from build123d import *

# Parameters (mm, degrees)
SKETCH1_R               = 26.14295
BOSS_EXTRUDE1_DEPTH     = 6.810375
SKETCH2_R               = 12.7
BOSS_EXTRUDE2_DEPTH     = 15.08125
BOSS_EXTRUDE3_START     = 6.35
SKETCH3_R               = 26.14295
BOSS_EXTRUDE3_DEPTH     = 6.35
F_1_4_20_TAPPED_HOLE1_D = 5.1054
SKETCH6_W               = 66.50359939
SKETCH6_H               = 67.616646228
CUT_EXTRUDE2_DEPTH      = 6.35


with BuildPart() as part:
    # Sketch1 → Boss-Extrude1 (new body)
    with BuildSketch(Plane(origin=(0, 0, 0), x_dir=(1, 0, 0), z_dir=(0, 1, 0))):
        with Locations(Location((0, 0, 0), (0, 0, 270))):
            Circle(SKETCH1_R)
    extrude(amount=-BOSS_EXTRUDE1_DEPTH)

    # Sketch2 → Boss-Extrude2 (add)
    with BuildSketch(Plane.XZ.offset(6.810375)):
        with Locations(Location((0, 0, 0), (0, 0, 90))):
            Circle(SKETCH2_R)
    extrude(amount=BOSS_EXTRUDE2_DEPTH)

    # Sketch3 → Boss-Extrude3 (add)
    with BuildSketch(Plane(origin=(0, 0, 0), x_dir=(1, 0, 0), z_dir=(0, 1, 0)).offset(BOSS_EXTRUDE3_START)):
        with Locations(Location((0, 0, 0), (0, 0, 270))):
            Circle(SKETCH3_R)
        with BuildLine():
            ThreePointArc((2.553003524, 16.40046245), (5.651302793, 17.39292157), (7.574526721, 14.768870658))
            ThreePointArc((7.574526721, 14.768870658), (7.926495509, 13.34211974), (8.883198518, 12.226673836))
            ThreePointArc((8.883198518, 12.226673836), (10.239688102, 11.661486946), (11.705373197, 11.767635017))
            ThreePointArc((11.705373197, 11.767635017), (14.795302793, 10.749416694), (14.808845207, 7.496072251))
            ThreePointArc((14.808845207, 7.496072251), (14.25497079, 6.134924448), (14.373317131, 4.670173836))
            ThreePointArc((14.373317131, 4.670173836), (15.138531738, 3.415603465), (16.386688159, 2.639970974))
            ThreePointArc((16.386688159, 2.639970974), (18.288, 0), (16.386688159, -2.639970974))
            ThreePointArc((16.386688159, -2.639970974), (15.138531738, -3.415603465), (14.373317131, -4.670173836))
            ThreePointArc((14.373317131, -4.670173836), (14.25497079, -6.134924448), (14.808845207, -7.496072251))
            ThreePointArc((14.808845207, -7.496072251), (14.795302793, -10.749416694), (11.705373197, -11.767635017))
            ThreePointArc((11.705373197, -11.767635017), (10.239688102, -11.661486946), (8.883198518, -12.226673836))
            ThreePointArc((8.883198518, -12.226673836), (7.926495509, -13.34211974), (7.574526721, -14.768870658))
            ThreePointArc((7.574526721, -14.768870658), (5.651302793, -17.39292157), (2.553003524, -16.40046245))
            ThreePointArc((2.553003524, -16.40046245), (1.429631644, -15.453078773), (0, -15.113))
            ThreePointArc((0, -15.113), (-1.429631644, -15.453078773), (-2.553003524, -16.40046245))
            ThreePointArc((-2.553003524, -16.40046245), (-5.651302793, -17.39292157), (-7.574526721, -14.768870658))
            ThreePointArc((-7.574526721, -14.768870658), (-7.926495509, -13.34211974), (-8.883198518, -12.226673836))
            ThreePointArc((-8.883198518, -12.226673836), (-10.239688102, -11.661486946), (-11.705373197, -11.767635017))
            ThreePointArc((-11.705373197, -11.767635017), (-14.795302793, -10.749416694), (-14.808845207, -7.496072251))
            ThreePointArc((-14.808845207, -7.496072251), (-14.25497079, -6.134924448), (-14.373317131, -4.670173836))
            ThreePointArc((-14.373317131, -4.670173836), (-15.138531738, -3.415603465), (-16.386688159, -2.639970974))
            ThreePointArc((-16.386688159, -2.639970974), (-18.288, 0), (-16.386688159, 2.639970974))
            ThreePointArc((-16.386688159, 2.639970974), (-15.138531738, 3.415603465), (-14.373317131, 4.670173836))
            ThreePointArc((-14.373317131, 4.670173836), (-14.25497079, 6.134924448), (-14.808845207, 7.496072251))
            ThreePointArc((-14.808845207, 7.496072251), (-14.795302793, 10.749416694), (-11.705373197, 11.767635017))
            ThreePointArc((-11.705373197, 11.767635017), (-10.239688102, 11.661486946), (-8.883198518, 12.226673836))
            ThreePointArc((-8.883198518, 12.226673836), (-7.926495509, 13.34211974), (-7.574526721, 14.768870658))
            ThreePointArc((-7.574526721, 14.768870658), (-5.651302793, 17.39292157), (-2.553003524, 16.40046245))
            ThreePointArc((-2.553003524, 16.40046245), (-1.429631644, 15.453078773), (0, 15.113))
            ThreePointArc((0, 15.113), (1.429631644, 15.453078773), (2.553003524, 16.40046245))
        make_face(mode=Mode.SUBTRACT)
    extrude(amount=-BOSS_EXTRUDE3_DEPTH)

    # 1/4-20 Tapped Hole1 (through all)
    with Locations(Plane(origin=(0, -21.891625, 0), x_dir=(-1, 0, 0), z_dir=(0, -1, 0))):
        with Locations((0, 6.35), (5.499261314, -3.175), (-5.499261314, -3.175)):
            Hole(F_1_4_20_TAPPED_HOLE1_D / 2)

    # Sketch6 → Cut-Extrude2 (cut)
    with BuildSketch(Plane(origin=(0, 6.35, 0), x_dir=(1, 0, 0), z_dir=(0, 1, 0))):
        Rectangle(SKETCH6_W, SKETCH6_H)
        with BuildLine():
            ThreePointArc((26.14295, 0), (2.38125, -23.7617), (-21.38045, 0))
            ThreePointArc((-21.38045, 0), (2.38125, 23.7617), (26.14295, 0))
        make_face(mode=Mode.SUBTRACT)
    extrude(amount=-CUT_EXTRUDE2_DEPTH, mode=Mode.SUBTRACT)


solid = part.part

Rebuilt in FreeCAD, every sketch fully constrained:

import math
import FreeCAD as App
import Part
import Sketcher
Q = App.Units.Quantity

doc = App.newDocument("Part")
body = doc.addObject("PartDesign::Body", "Body")

# Sketch on XZ plane
sketch1 = body.newObject("Sketcher::SketchObject", "Sketch")
sketch1.AttachmentSupport = (doc.getObject("XZ_Plane"), [""])
sketch1.MapMode = "FlatFace"
sketch1.addGeometry(Part.Circle(App.Vector(0, 0, 0), App.Vector(0, 0, 1), 26.14295), False)
sketch1.addConstraint(Sketcher.Constraint("Coincident", 0, 3, -1, 1))
sketch1.addConstraint(Sketcher.Constraint("Diameter", 0, Q("2.0585 in")))
pad1 = body.newObject("PartDesign::Pad", "Pad")
pad1.Profile = sketch1
pad1.Length = 6.810375

# Sketch on XZ plane
sketch2 = body.newObject("Sketcher::SketchObject", "Sketch001")
sketch2.AttachmentSupport = (doc.getObject("XZ_Plane"), [""])
sketch2.MapMode = "FlatFace"
sketch2.AttachmentOffset = App.Placement(App.Vector(0, 0, 6.810375), App.Rotation())
sketch2.addGeometry(Part.Circle(App.Vector(0, 0, 0), App.Vector(0, 0, 1), 12.7), False)
sketch2.addConstraint(Sketcher.Constraint("Coincident", 0, 3, -1, 1))
sketch2.addConstraint(Sketcher.Constraint("Diameter", 0, Q("1 in")))
pad2 = body.newObject("PartDesign::Pad", "Pad001")
pad2.Profile = sketch2
pad2.Length = Q("0.59375 in")

# Sketch on XZ plane
sketch3 = body.newObject("Sketcher::SketchObject", "Sketch002")
sketch3.AttachmentSupport = (doc.getObject("XZ_Plane"), [""])
sketch3.MapMode = "FlatFace"
sketch3.AttachmentOffset = App.Placement(App.Vector(0, 0, -0.25 * 25.4), App.Rotation())
sketch3.addGeometry(Part.Circle(App.Vector(0, 0, 0), App.Vector(0, 0, 1), 26.14295), False)
sketch3.addGeometry(Part.ArcOfCircle(Part.Circle(App.Vector(0, -18.288, 0), App.Vector(0, 0, 1), 3.175), math.radians(36.476998), math.radians(90)), False)
sketch3.addGeometry(Part.ArcOfCircle(Part.Circle(App.Vector(4.791168, -14.745698, 0), App.Vector(0, 0, 1), 2.783455), math.radians(-143.523002), math.radians(-0.476998)), False)
sketch3.addGeometry(Part.ArcOfCircle(Part.Circle(App.Vector(10.749417, -14.795303, 0), App.Vector(0, 0, 1), 3.175), math.radians(126), math.radians(179.523002)), False)
sketch3.addGeometry(Part.ArcOfCircle(Part.Circle(App.Vector(10.749417, -14.795303, 0), App.Vector(0, 0, 1), 3.175), math.radians(72.476998), math.radians(126)), False)
sketch3.addGeometry(Part.ArcOfCircle(Part.Circle(App.Vector(12.54344, -9.113343, 0), App.Vector(0, 0, 1), 2.783455), math.radians(-107.523002), math.radians(35.523002)), False)
sketch3.addGeometry(Part.ArcOfCircle(Part.Circle(App.Vector(17.392922, -5.651303, 0), App.Vector(0, 0, 1), 3.175), math.radians(162), math.radians(215.523002)), False)
sketch3.addGeometry(Part.ArcOfCircle(Part.Circle(App.Vector(17.392922, -5.651303, 0), App.Vector(0, 0, 1), 3.175), math.radians(108.476998), math.radians(162)), False)
sketch3.addGeometry(Part.ArcOfCircle(Part.Circle(App.Vector(15.504545, 0, 0), App.Vector(0, 0, 1), 2.783455), math.radians(-71.523002), math.radians(71.523002)), False)
sketch3.addGeometry(Part.ArcOfCircle(Part.Circle(App.Vector(17.392922, 5.651303, 0), App.Vector(0, 0, 1), 3.175), math.radians(-162), math.radians(-108.476998)), False)
sketch3.addGeometry(Part.ArcOfCircle(Part.Circle(App.Vector(17.392922, 5.651303, 0), App.Vector(0, 0, 1), 3.175), math.radians(144.476998), math.radians(198)), False)
sketch3.addGeometry(Part.ArcOfCircle(Part.Circle(App.Vector(12.54344, 9.113343, 0), App.Vector(0, 0, 1), 2.783455), math.radians(-35.523002), math.radians(107.523002)), False)
sketch3.addGeometry(Part.ArcOfCircle(Part.Circle(App.Vector(10.749417, 14.795303, 0), App.Vector(0, 0, 1), 3.175), math.radians(-126), math.radians(-72.476998)), False)
sketch3.addGeometry(Part.ArcOfCircle(Part.Circle(App.Vector(10.749417, 14.795303, 0), App.Vector(0, 0, 1), 3.175), math.radians(-179.523002), math.radians(-126)), False)
sketch3.addGeometry(Part.ArcOfCircle(Part.Circle(App.Vector(4.791168, 14.745698, 0), App.Vector(0, 0, 1), 2.783455), math.radians(0.476998), math.radians(143.523002)), False)
sketch3.addGeometry(Part.ArcOfCircle(Part.Circle(App.Vector(0, 18.288, 0), App.Vector(0, 0, 1), 3.175), math.radians(-90), math.radians(-36.476998)), False)
sketch3.addGeometry(Part.ArcOfCircle(Part.Circle(App.Vector(0, 18.288, 0), App.Vector(0, 0, 1), 3.175), math.radians(-143.523002), math.radians(-90)), False)
sketch3.addGeometry(Part.ArcOfCircle(Part.Circle(App.Vector(-4.791168, 14.745698, 0), App.Vector(0, 0, 1), 2.783455), math.radians(36.476998), math.radians(179.523002)), False)
sketch3.addGeometry(Part.ArcOfCircle(Part.Circle(App.Vector(-10.749417, 14.795303, 0), App.Vector(0, 0, 1), 3.175), math.radians(-54), math.radians(-0.476998)), False)
sketch3.addGeometry(Part.ArcOfCircle(Part.Circle(App.Vector(-10.749417, 14.795303, 0), App.Vector(0, 0, 1), 3.175), math.radians(-107.523002), math.radians(-54)), False)
sketch3.addGeometry(Part.ArcOfCircle(Part.Circle(App.Vector(-12.54344, 9.113343, 0), App.Vector(0, 0, 1), 2.783455), math.radians(72.476998), math.radians(215.523002)), False)
sketch3.addGeometry(Part.ArcOfCircle(Part.Circle(App.Vector(-17.392922, 5.651303, 0), App.Vector(0, 0, 1), 3.175), math.radians(-18), math.radians(35.523002)), False)
sketch3.addGeometry(Part.ArcOfCircle(Part.Circle(App.Vector(-17.392922, 5.651303, 0), App.Vector(0, 0, 1), 3.175), math.radians(-71.523002), math.radians(-18)), False)
sketch3.addGeometry(Part.ArcOfCircle(Part.Circle(App.Vector(-15.504545, 0, 0), App.Vector(0, 0, 1), 2.783455), math.radians(108.476998), math.radians(251.523002)), False)
sketch3.addGeometry(Part.ArcOfCircle(Part.Circle(App.Vector(-17.392922, -5.651303, 0), App.Vector(0, 0, 1), 3.175), math.radians(18), math.radians(71.523002)), False)
sketch3.addGeometry(Part.ArcOfCircle(Part.Circle(App.Vector(-17.392922, -5.651303, 0), App.Vector(0, 0, 1), 3.175), math.radians(-35.523002), math.radians(18)), False)
sketch3.addGeometry(Part.ArcOfCircle(Part.Circle(App.Vector(-12.54344, -9.113343, 0), App.Vector(0, 0, 1), 2.783455), math.radians(144.476998), math.radians(287.523002)), False)
sketch3.addGeometry(Part.ArcOfCircle(Part.Circle(App.Vector(-10.749417, -14.795303, 0), App.Vector(0, 0, 1), 3.175), math.radians(54), math.radians(107.523002)), False)
sketch3.addGeometry(Part.ArcOfCircle(Part.Circle(App.Vector(-10.749417, -14.795303, 0), App.Vector(0, 0, 1), 3.175), math.radians(0.476998), math.radians(54)), False)
sketch3.addGeometry(Part.ArcOfCircle(Part.Circle(App.Vector(-4.791168, -14.745698, 0), App.Vector(0, 0, 1), 2.783455), math.radians(-179.523002), math.radians(-36.476998)), False)
sketch3.addGeometry(Part.ArcOfCircle(Part.Circle(App.Vector(0, -18.288, 0), App.Vector(0, 0, 1), 3.175), math.radians(90), math.radians(143.523002)), False)
sketch3.addConstraint(Sketcher.Constraint("Tangent", 1, 1, 2, 1))
sketch3.addConstraint(Sketcher.Constraint("Tangent", 2, 2, 3, 2))
sketch3.addConstraint(Sketcher.Constraint("Tangent", 3, 1, 4, 2))
sketch3.addConstraint(Sketcher.Constraint("Tangent", 4, 1, 5, 1))
sketch3.addConstraint(Sketcher.Constraint("Tangent", 5, 2, 6, 2))
sketch3.addConstraint(Sketcher.Constraint("Tangent", 6, 1, 7, 2))
sketch3.addConstraint(Sketcher.Constraint("Tangent", 7, 1, 8, 1))
sketch3.addConstraint(Sketcher.Constraint("Tangent", 8, 2, 9, 2))
sketch3.addConstraint(Sketcher.Constraint("Tangent", 9, 1, 10, 2))
sketch3.addConstraint(Sketcher.Constraint("Tangent", 10, 1, 11, 1))
sketch3.addConstraint(Sketcher.Constraint("Tangent", 11, 2, 12, 2))
sketch3.addConstraint(Sketcher.Constraint("Tangent", 12, 1, 13, 2))
sketch3.addConstraint(Sketcher.Constraint("Tangent", 13, 1, 14, 1))
sketch3.addConstraint(Sketcher.Constraint("Tangent", 14, 2, 15, 2))
sketch3.addConstraint(Sketcher.Constraint("Tangent", 15, 1, 16, 2))
sketch3.addConstraint(Sketcher.Constraint("Tangent", 16, 1, 17, 1))
sketch3.addConstraint(Sketcher.Constraint("Tangent", 17, 2, 18, 2))
sketch3.addConstraint(Sketcher.Constraint("Tangent", 18, 1, 19, 2))
sketch3.addConstraint(Sketcher.Constraint("Tangent", 19, 1, 20, 1))
sketch3.addConstraint(Sketcher.Constraint("Tangent", 20, 2, 21, 2))
sketch3.addConstraint(Sketcher.Constraint("Tangent", 21, 1, 22, 2))
sketch3.addConstraint(Sketcher.Constraint("Tangent", 22, 1, 23, 1))
sketch3.addConstraint(Sketcher.Constraint("Tangent", 23, 2, 24, 2))
sketch3.addConstraint(Sketcher.Constraint("Tangent", 24, 1, 25, 2))
sketch3.addConstraint(Sketcher.Constraint("Tangent", 25, 1, 26, 1))
sketch3.addConstraint(Sketcher.Constraint("Tangent", 26, 2, 27, 2))
sketch3.addConstraint(Sketcher.Constraint("Tangent", 27, 1, 28, 2))
sketch3.addConstraint(Sketcher.Constraint("Tangent", 28, 1, 29, 1))
sketch3.addConstraint(Sketcher.Constraint("Tangent", 29, 2, 30, 2))
sketch3.addConstraint(Sketcher.Constraint("Tangent", 30, 1, 1, 2))
sketch3.addConstraint(Sketcher.Constraint("Coincident", 0, 3, -1, 1))
sketch3.addConstraint(Sketcher.Constraint("Equal", 1, 3))
sketch3.addConstraint(Sketcher.Constraint("Equal", 3, 4))
sketch3.addConstraint(Sketcher.Constraint("Equal", 2, 5))
sketch3.addConstraint(Sketcher.Constraint("Equal", 4, 6))
sketch3.addConstraint(Sketcher.Constraint("Equal", 6, 7))
sketch3.addConstraint(Sketcher.Constraint("Equal", 5, 8))
sketch3.addConstraint(Sketcher.Constraint("Equal", 7, 9))
sketch3.addConstraint(Sketcher.Constraint("Equal", 9, 10))
sketch3.addConstraint(Sketcher.Constraint("Equal", 8, 11))
sketch3.addConstraint(Sketcher.Constraint("Equal", 10, 12))
sketch3.addConstraint(Sketcher.Constraint("Equal", 12, 13))
sketch3.addConstraint(Sketcher.Constraint("Equal", 11, 14))
sketch3.addConstraint(Sketcher.Constraint("Equal", 13, 15))
sketch3.addConstraint(Sketcher.Constraint("Equal", 15, 16))
sketch3.addConstraint(Sketcher.Constraint("Equal", 14, 17))
sketch3.addConstraint(Sketcher.Constraint("Equal", 16, 18))
sketch3.addConstraint(Sketcher.Constraint("Equal", 18, 19))
sketch3.addConstraint(Sketcher.Constraint("Equal", 17, 20))
sketch3.addConstraint(Sketcher.Constraint("Equal", 19, 21))
sketch3.addConstraint(Sketcher.Constraint("Equal", 21, 22))
sketch3.addConstraint(Sketcher.Constraint("Equal", 20, 23))
sketch3.addConstraint(Sketcher.Constraint("Equal", 22, 24))
sketch3.addConstraint(Sketcher.Constraint("Equal", 24, 25))
sketch3.addConstraint(Sketcher.Constraint("Equal", 23, 26))
sketch3.addConstraint(Sketcher.Constraint("Equal", 25, 27))
sketch3.addConstraint(Sketcher.Constraint("Equal", 27, 28))
sketch3.addConstraint(Sketcher.Constraint("Equal", 26, 29))
sketch3.addConstraint(Sketcher.Constraint("Equal", 28, 30))
sketch3.addConstraint(Sketcher.Constraint("Symmetric", 1, 3, 15, 3, -1, 1))
sketch3.addConstraint(Sketcher.Constraint("Symmetric", 3, 3, 18, 3, -1, 1))
sketch3.addConstraint(Sketcher.Constraint("Symmetric", 6, 3, 21, 3, -1, 1))
sketch3.addConstraint(Sketcher.Constraint("Symmetric", 9, 3, 24, 3, -1, 1))
sketch3.addConstraint(Sketcher.Constraint("Symmetric", 12, 3, 27, 3, -1, 1))
sketch3.addConstraint(Sketcher.Constraint("Symmetric", 14, 3, 17, 3, -2))
sketch3.addConstraint(Sketcher.Constraint("Symmetric", 11, 3, 20, 3, -2))
sketch3.addConstraint(Sketcher.Constraint("Symmetric", 9, 1, 21, 1, -2))
sketch3.addConstraint(Sketcher.Constraint("PointOnObject", 15, 1, -2))
sketch3.addConstraint(Sketcher.Constraint("PointOnObject", 30, 1, -2))
sketch3.addConstraint(Sketcher.Constraint("Horizontal", 12, 1, 18, 1))
sketch3.addConstraint(Sketcher.Constraint("Horizontal", 6, 1, 24, 1))
sketch3.addConstraint(Sketcher.Constraint("Horizontal", 3, 1, 27, 1))
sketch3.addConstraint(Sketcher.Constraint("Vertical", 6, 1, 9, 1))
sketch3.addConstraint(Sketcher.Constraint("Vertical", 3, 1, 12, 1))
sketch3.addConstraint(Sketcher.Constraint("Radius", 1, Q("0.125 in")))
sketch3.addConstraint(Sketcher.Constraint("Diameter", 0, Q("2.0585 in")))
sketch3.addConstraint(Sketcher.Constraint("DistanceY", 1, 3, -1, 1, Q("0.72 in")))
sketch3.addConstraint(Sketcher.Constraint("Radius", 2, 2.783455))
sketch3.addConstraint(Sketcher.Constraint("DistanceY", 2, 3, -1, 1, 14.745698))
sketch3.addConstraint(Sketcher.Constraint("DistanceX", -1, 1, 3, 1, 8.883199))
sketch3.addConstraint(Sketcher.Constraint("DistanceX", -1, 1, 5, 3, 12.54344))
sketch3.addConstraint(Sketcher.Constraint("DistanceX", -1, 1, 6, 3, 17.392922))
sketch3.addConstraint(Sketcher.Constraint("DistanceY", 2, 2, -1, 1, 14.768871))
sketch3.addConstraint(Sketcher.Constraint("DistanceX", -1, 1, 6, 1, 14.373317))
pad3 = body.newObject("PartDesign::Pad", "Pad002")
pad3.Profile = sketch3
pad3.Length = Q("0.25 in")

# Sketch on XZ plane
sketch4 = body.newObject("Sketcher::SketchObject", "Sketch003")
sketch4.AttachmentSupport = (doc.getObject("XZ_Plane"), [""])
sketch4.MapMode = "FlatFace"
sketch4.AttachmentOffset = App.Placement(App.Vector(0, 0, 21.891625), App.Rotation())
sketch4.addGeometry(Part.Circle(App.Vector(0, -6.35, 0), App.Vector(0, 0, 1), 2.5527), False)
sketch4.addGeometry(Part.Circle(App.Vector(-5.499261, 3.175, 0), App.Vector(0, 0, 1), 2.5527), False)
sketch4.addGeometry(Part.Circle(App.Vector(5.499261, 3.175, 0), App.Vector(0, 0, 1), 2.5527), False)
sketch4.addConstraint(Sketcher.Constraint("Equal", 0, 1))
sketch4.addConstraint(Sketcher.Constraint("Equal", 1, 2))
sketch4.addConstraint(Sketcher.Constraint("Symmetric", 1, 3, 2, 3, -2))
sketch4.addConstraint(Sketcher.Constraint("PointOnObject", 0, 3, -2))
sketch4.addConstraint(Sketcher.Constraint("Diameter", 0, Q("0.201 in")))
sketch4.addConstraint(Sketcher.Constraint("DistanceY", 0, 3, -1, 1, Q("0.25 in")))
sketch4.addConstraint(Sketcher.Constraint("DistanceY", -1, 1, 1, 3, Q("0.125 in")))
sketch4.addConstraint(Sketcher.Constraint("DistanceX", 1, 3, -1, 1, 5.499261))
doc.recompute()
hole = body.newObject("PartDesign::Hole", "Hole")
hole.Profile = sketch4
hole.ThreadType = "None"
hole.Diameter = Q("0.201 in")
hole.DepthType = "ThroughAll"

# Sketch on XZ plane
sketch5 = body.newObject("Sketcher::SketchObject", "Sketch004")
sketch5.AttachmentSupport = (doc.getObject("XZ_Plane"), [""])
sketch5.MapMode = "FlatFace"
sketch5.AttachmentOffset = App.Placement(App.Vector(0, 0, -0.25 * 25.4), App.Rotation())
sketch5.addGeometry(Part.LineSegment(App.Vector(-33.2518, -33.808323, 0), App.Vector(-33.2518, 33.808323, 0)), False)
sketch5.addGeometry(Part.LineSegment(App.Vector(-33.2518, 33.808323, 0), App.Vector(33.2518, 33.808323, 0)), False)
sketch5.addGeometry(Part.LineSegment(App.Vector(33.2518, 33.808323, 0), App.Vector(33.2518, -33.808323, 0)), False)
sketch5.addGeometry(Part.LineSegment(App.Vector(33.2518, -33.808323, 0), App.Vector(-33.2518, -33.808323, 0)), False)
sketch5.addGeometry(Part.Circle(App.Vector(2.38125, 0, 0), App.Vector(0, 0, 1), 23.7617), False)
sketch5.addConstraint(Sketcher.Constraint("Coincident", 0, 2, 1, 1))
sketch5.addConstraint(Sketcher.Constraint("Coincident", 1, 2, 2, 1))
sketch5.addConstraint(Sketcher.Constraint("Coincident", 2, 2, 3, 1))
sketch5.addConstraint(Sketcher.Constraint("Coincident", 3, 2, 0, 1))
sketch5.addConstraint(Sketcher.Constraint("Vertical", 0))
sketch5.addConstraint(Sketcher.Constraint("Horizontal", 1))
sketch5.addConstraint(Sketcher.Constraint("Vertical", 2))
sketch5.addConstraint(Sketcher.Constraint("Horizontal", 3))
sketch5.addConstraint(Sketcher.Constraint("Symmetric", 0, 2, 2, 2, -1, 1))
sketch5.addConstraint(Sketcher.Constraint("PointOnObject", 4, 3, -1))
sketch5.addConstraint(Sketcher.Constraint("Diameter", 4, Q("1.871 in")))
sketch5.addConstraint(Sketcher.Constraint("DistanceX", -1, 1, 4, 3, Q("0.09375 in")))
sketch5.addConstraint(Sketcher.Constraint("DistanceX", 1, 1, 1, 2, 66.503599))
sketch5.addConstraint(Sketcher.Constraint("DistanceY", 0, 1, 0, 2, 67.616646))
pocket1 = body.newObject("PartDesign::Pocket", "Pocket")
pocket1.Profile = sketch5
pocket1.Length = Q("0.25 in")
pocket1.Reversed = True

doc.recompute()
